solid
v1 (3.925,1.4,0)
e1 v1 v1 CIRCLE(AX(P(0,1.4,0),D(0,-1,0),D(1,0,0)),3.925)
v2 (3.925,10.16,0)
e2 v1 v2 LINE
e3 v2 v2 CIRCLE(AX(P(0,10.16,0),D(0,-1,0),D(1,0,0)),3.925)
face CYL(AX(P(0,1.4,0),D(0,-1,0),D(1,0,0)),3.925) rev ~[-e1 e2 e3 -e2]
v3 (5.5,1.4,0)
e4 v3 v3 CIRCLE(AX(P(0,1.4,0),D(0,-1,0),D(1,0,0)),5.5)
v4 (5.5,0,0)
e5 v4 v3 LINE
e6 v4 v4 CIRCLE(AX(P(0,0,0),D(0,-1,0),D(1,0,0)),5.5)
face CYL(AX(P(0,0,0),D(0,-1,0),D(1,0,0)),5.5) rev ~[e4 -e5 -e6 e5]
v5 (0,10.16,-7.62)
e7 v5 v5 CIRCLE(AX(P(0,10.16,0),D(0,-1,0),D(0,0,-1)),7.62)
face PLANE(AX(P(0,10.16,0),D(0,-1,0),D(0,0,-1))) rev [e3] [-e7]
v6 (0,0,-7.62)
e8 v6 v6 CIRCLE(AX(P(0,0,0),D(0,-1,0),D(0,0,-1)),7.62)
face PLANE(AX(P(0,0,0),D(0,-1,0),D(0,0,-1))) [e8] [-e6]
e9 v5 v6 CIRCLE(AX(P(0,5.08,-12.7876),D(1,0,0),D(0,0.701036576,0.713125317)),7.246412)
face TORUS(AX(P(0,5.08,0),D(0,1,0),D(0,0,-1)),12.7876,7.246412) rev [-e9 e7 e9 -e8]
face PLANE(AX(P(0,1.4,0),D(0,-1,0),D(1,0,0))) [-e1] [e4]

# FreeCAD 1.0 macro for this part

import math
import FreeCAD as App
import Part
import Sketcher

V = App.Vector
Q = App.Units.Quantity

doc = App.newDocument("Part")
body = doc.addObject("PartDesign::Body", "Body")

sketch1 = doc.addObject("Sketcher::SketchObject", "Sketch")
body.addObject(sketch1)
sketch1.AttachmentSupport = (doc.YZ_Plane, [""])
sketch1.MapMode = "FlatFace"
sketch1.addGeometry(Part.LineSegment(V(10, 0, 0), V(0, 0, 0)), False)
sketch1.addGeometry(Part.LineSegment(V(0, 0, 0), V(0, -8, 0)), False)
sketch1.addGeometry(Part.ArcOfCircle(Part.Circle(V(5, -13, 0), V(0, 0, 1), 7), math.radians(45), math.radians(135)), False)
sketch1.addGeometry(Part.LineSegment(V(10, -8, 0), V(10, 0, 0)), False)
sketch1.addConstraint(Sketcher.Constraint("Coincident", 0, 2, 1, 1))
sketch1.addConstraint(Sketcher.Constraint("Coincident", 1, 2, 2, 2))
sketch1.addConstraint(Sketcher.Constraint("Coincident", 2, 1, 3, 1))
sketch1.addConstraint(Sketcher.Constraint("Coincident", 3, 2, 0, 1))
sketch1.addConstraint(Sketcher.Constraint("Horizontal", 0))
sketch1.addConstraint(Sketcher.Constraint("Vertical", 1))
sketch1.addConstraint(Sketcher.Constraint("Vertical", 3))
sketch1.addConstraint(Sketcher.Constraint("Coincident", 0, 2, -1, 1))
sketch1.addConstraint(Sketcher.Constraint("Horizontal", 1, 2, 2, 1))
sketch1.addConstraint(Sketcher.Constraint("DistanceX", 0, 2, 0, 1, Q("10.16 mm")))
sketch1.addConstraint(Sketcher.Constraint("DistanceY", 1, 2, 1, 1, Q("7.62 mm")))
sketch1.addConstraint(Sketcher.Constraint("Radius", 2, Q("7.2464 mm")))
revolution = doc.addObject("PartDesign::Revolution", "Revolution")
body.addObject(revolution)
revolution.Profile = sketch1
revolution.ReferenceAxis = (sketch1, ["H_Axis"])
revolution.Angle = 360

sketch2 = doc.addObject("Sketcher::SketchObject", "Sketch001")
body.addObject(sketch2)
sketch2.AttachmentSupport = (doc.XZ_Plane, [""])
sketch2.MapMode = "FlatFace"
sketch2.addGeometry(Part.Circle(V(0, 0, 0), V(0, 0, 1), 6), False)
sketch2.addConstraint(Sketcher.Constraint("Coincident", 0, 3, -1, 1))
sketch2.addConstraint(Sketcher.Constraint("Diameter", 0, Q("11 mm")))
pocket1 = doc.addObject("PartDesign::Pocket", "Pocket")
body.addObject(pocket1)
pocket1.Profile = sketch2
pocket1.Length = 1.4

sketch3 = doc.addObject("Sketcher::SketchObject", "Sketch002")
body.addObject(sketch3)
sketch3.AttachmentSupport = (doc.XZ_Plane, [""])
sketch3.MapMode = "FlatFace"
sketch3.AttachmentOffset = App.Placement(V(0, 0, -1.4), App.Rotation())
sketch3.addGeometry(Part.Circle(V(0, 0, 0), V(0, 0, 1), 3.9), False)
sketch3.addConstraint(Sketcher.Constraint("Coincident", 0, 3, -1, 1))
sketch3.addConstraint(Sketcher.Constraint("Diameter", 0, Q("7.85 mm")))
pocket2 = doc.addObject("PartDesign::Pocket", "Pocket001")
body.addObject(pocket2)
pocket2.Profile = sketch3
pocket2.Type = "ThroughAll"

doc.recompute()
